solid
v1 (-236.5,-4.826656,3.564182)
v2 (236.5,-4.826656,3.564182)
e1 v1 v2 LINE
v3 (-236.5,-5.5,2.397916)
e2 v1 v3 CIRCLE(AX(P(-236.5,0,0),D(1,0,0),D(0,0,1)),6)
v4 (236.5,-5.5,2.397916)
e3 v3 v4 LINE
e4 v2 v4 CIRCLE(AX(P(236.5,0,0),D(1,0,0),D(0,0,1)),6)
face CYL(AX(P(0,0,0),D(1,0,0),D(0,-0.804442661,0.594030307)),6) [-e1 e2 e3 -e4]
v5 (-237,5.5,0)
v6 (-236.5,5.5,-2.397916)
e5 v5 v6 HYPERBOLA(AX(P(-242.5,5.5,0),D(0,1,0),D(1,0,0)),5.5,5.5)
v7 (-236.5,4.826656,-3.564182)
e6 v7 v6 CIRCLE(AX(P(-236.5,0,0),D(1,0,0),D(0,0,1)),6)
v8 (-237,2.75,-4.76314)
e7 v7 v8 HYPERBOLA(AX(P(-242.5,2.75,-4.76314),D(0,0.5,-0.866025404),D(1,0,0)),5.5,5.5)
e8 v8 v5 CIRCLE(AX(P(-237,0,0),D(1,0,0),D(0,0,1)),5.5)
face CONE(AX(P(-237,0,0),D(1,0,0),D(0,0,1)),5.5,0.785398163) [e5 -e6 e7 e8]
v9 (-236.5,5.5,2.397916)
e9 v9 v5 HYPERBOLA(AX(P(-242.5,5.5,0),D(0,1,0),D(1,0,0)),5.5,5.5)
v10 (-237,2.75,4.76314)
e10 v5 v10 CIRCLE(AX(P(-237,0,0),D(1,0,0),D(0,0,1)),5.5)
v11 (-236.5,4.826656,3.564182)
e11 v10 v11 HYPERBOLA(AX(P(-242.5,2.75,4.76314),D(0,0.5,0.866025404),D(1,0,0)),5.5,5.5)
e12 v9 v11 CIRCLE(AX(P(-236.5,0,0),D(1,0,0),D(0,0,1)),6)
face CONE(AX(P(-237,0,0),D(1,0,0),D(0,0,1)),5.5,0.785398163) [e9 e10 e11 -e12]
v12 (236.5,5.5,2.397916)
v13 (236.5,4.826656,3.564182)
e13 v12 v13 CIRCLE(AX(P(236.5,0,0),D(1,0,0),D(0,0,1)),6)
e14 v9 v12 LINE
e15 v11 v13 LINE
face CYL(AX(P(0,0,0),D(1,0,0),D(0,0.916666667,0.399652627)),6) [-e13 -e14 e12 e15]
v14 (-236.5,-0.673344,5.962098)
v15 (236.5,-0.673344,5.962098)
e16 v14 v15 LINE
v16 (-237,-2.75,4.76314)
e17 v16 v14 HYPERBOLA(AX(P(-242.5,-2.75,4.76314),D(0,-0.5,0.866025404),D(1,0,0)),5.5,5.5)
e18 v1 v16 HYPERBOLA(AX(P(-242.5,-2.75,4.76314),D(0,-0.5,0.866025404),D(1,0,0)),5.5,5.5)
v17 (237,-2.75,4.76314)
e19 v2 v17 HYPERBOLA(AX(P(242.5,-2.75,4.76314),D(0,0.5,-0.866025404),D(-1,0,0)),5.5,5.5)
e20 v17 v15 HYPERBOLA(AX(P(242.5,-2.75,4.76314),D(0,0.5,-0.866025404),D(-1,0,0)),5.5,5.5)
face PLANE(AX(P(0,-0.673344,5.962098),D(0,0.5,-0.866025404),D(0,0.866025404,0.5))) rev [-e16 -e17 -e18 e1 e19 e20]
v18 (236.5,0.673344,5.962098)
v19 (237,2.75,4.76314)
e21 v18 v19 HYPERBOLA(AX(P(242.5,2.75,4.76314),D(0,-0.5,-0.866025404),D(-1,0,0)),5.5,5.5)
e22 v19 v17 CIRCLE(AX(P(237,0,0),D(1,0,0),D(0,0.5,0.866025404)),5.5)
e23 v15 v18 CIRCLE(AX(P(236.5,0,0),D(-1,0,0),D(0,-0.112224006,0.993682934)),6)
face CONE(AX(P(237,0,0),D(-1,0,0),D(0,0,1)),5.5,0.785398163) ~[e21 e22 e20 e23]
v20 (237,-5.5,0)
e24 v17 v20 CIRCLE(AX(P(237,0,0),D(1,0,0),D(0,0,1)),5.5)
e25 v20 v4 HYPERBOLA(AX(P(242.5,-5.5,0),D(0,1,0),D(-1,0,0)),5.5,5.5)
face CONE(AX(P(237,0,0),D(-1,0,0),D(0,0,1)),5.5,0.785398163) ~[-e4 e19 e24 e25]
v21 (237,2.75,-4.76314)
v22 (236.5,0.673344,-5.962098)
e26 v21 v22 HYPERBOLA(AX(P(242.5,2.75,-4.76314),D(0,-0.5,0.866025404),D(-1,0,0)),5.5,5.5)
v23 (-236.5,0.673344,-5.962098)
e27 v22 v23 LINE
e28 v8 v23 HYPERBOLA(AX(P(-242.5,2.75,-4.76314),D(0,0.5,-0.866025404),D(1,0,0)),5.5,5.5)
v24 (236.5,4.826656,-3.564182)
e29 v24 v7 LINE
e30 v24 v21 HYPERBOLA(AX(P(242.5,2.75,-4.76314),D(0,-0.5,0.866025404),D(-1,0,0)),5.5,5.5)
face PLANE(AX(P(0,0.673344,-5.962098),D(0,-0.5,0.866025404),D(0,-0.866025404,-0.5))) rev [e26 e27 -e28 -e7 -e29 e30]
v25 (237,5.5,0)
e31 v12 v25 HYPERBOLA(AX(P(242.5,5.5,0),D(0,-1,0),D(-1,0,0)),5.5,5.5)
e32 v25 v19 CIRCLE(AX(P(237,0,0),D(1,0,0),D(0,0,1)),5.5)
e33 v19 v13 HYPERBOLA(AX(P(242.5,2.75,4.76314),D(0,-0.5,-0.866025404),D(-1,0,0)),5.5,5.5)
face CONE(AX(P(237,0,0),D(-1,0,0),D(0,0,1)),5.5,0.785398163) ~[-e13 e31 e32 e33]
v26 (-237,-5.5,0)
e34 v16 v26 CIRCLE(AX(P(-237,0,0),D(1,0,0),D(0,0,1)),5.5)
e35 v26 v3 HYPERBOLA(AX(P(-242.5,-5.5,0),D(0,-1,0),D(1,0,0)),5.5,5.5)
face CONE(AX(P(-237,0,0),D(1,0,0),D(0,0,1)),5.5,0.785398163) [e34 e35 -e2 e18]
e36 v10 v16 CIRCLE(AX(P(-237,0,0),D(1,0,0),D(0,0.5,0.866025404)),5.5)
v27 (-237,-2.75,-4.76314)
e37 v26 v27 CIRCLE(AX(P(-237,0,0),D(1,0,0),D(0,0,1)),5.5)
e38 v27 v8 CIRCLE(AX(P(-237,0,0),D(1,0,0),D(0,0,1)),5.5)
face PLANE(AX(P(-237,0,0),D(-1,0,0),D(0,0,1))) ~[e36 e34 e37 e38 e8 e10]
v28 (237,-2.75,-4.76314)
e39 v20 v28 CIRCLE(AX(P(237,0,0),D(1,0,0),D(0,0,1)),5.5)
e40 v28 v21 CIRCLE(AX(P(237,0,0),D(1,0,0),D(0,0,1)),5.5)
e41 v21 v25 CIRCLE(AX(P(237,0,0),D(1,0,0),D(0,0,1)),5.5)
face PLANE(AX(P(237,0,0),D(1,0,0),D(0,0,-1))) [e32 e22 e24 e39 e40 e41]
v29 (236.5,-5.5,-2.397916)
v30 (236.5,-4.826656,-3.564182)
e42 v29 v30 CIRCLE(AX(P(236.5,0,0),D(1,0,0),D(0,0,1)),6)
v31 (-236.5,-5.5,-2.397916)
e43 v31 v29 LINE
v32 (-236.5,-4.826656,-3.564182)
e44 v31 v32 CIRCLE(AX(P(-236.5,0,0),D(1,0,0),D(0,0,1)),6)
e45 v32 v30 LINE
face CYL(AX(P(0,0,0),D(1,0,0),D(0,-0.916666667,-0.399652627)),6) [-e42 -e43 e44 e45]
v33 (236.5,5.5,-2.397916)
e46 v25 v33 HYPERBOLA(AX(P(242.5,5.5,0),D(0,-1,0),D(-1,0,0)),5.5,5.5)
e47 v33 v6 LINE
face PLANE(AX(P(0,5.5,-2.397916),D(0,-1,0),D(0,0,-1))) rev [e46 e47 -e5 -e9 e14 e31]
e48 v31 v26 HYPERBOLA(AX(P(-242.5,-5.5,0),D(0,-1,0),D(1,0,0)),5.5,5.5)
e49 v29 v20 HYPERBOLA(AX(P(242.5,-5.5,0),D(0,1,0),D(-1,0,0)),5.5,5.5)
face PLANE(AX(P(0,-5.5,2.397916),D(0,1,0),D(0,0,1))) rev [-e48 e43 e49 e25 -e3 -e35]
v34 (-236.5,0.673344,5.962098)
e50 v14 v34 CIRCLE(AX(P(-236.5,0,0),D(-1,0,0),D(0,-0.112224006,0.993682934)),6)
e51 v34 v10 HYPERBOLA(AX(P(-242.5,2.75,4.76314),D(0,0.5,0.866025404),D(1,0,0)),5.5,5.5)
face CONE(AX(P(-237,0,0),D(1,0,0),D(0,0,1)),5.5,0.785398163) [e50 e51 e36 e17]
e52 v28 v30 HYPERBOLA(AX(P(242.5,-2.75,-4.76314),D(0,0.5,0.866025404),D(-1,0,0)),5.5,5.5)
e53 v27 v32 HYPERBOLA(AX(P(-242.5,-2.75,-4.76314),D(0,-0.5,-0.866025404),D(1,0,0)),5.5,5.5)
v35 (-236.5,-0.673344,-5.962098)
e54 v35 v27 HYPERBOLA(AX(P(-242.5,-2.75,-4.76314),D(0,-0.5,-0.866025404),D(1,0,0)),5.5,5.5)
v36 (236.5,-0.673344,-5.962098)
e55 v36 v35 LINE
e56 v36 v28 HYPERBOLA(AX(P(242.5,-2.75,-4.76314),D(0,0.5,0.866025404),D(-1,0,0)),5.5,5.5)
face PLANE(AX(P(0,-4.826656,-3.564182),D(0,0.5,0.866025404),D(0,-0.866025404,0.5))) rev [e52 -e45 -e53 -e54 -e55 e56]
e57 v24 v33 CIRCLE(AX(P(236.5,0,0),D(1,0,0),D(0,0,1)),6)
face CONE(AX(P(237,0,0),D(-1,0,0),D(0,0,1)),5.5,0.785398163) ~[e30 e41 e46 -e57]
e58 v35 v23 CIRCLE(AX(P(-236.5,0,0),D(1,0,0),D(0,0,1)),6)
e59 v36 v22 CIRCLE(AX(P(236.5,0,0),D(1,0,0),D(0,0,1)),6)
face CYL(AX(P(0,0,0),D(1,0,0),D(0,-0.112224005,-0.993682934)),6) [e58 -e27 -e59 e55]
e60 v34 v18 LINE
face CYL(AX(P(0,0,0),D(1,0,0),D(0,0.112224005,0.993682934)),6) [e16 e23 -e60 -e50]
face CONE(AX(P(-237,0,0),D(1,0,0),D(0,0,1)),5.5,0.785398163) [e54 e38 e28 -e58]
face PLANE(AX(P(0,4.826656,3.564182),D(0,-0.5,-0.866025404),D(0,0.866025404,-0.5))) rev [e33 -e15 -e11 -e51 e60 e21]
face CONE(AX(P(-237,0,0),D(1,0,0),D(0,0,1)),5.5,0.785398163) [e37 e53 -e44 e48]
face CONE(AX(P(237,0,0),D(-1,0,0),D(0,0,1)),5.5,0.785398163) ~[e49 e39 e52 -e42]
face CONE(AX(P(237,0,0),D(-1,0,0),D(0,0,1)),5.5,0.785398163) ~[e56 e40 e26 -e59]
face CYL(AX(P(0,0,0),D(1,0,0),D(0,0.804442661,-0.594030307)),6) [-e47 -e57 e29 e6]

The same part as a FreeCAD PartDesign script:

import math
import FreeCAD as App
import Part
import Sketcher
from FreeCAD import Vector
Q = App.Units.Quantity

doc = App.newDocument("Part")
body = doc.addObject("PartDesign::Body", "Body")

# Sketch on YZ plane
sketch1 = body.newObject("Sketcher::SketchObject", "Sketch")
sketch1.AttachmentSupport = (doc.getObject("YZ_Plane"), [""])
sketch1.MapMode = "FlatFace"
sketch1.addGeometry([
    Part.LineSegment(Vector(5.5, -2.4, 0), Vector(5.5, 2.4, 0)),  # 0
    Part.ArcOfCircle(Part.Circle(Vector(0, 0, 0), Vector(0, 0, 1), 6), math.radians(23.56), math.radians(36.44)),  # 1
    Part.LineSegment(Vector(4.8, 3.6, 0), Vector(0.7, 6, 0)),  # 2
    Part.ArcOfCircle(Part.Circle(Vector(0, 0, 0), Vector(0, 0, 1), 6), math.radians(83.56), math.radians(96.44)),  # 3
    Part.LineSegment(Vector(-0.7, 6, 0), Vector(-4.8, 3.6, 0)),  # 4
    Part.ArcOfCircle(Part.Circle(Vector(0, 0, 0), Vector(0, 0, 1), 6), math.radians(143.56), math.radians(156.44)),  # 5
    Part.LineSegment(Vector(-5.5, 2.4, 0), Vector(-5.5, -2.4, 0)),  # 6
    Part.ArcOfCircle(Part.Circle(Vector(0, 0, 0), Vector(0, 0, 1), 6), math.radians(-156.44), math.radians(-143.56)),  # 7
    Part.LineSegment(Vector(-4.8, -3.6, 0), Vector(-0.7, -6, 0)),  # 8
    Part.ArcOfCircle(Part.Circle(Vector(0, 0, 0), Vector(0, 0, 1), 6), math.radians(-96.44), math.radians(-83.56)),  # 9
    Part.LineSegment(Vector(0.7, -6, 0), Vector(4.8, -3.6, 0)),  # 10
    Part.ArcOfCircle(Part.Circle(Vector(0, 0, 0), Vector(0, 0, 1), 6), math.radians(-36.44), math.radians(-23.56)),  # 11
], False)
sketch1.addConstraint([
    Sketcher.Constraint("Coincident", 0, 2, 1, 1),
    Sketcher.Constraint("Coincident", 1, 2, 2, 1),
    Sketcher.Constraint("Coincident", 2, 2, 3, 1),
    Sketcher.Constraint("Coincident", 3, 2, 4, 1),
    Sketcher.Constraint("Coincident", 4, 2, 5, 1),
    Sketcher.Constraint("Coincident", 5, 2, 6, 1),
    Sketcher.Constraint("Coincident", 6, 2, 7, 1),
    Sketcher.Constraint("Coincident", 7, 2, 8, 1),
    Sketcher.Constraint("Coincident", 8, 2, 9, 1),
    Sketcher.Constraint("Coincident", 9, 2, 10, 1),
    Sketcher.Constraint("Coincident", 10, 2, 11, 1),
    Sketcher.Constraint("Coincident", 11, 2, 0, 1),
    Sketcher.Constraint("Vertical", 0),
    Sketcher.Constraint("Vertical", 6),
    Sketcher.Constraint("Coincident", 1, 3, -1, 1),
    Sketcher.Constraint("Coincident", 3, 3, -1, 1),
    Sketcher.Constraint("Coincident", 5, 3, -1, 1),
    Sketcher.Constraint("Coincident", 7, 3, -1, 1),
    Sketcher.Constraint("Coincident", 9, 3, -1, 1),
    Sketcher.Constraint("Coincident", 11, 3, -1, 1),
    Sketcher.Constraint("Equal", 1, 3),
    Sketcher.Constraint("Equal", 3, 5),
    Sketcher.Constraint("Equal", 5, 7),
    Sketcher.Constraint("Equal", 7, 9),
    Sketcher.Constraint("Equal", 9, 11),
    Sketcher.Constraint("Parallel", 2, 8),
    Sketcher.Constraint("Parallel", 4, 10),
    Sketcher.Constraint("Horizontal", 2, 2, 3, 2),
    Sketcher.Constraint("Horizontal", 1, 2, 4, 2),
    Sketcher.Constraint("Horizontal", 0, 2, 5, 2),
    Sketcher.Constraint("Horizontal", 8, 2, 9, 2),
    Sketcher.Constraint("Vertical", 4, 2, 7, 2),
    Sketcher.Constraint("Radius", 1, 6.0),
    Sketcher.Constraint("Angle", 2, Q("150 deg")),
    Sketcher.Constraint("DistanceX", -1, 1, 0, 2, 5.5),
    Sketcher.Constraint("DistanceX", 3, 2, 1, 2, 5.5),
])
pad1 = body.newObject("PartDesign::Pad", "Pad")
pad1.Profile = sketch1
pad1.Length = 237

# Sketch on XZ plane
sketch2 = body.newObject("Sketcher::SketchObject", "Sketch001")
sketch2.AttachmentSupport = (doc.getObject("XZ_Plane"), [""])
sketch2.MapMode = "FlatFace"
sketch2.addGeometry([
    Part.LineSegment(Vector(236.5, 6, 0), Vector(237, 6, 0)),
    Part.LineSegment(Vector(237, 6, 0), Vector(237, 5.5, 0)),
    Part.LineSegment(Vector(237, 5.5, 0), Vector(236.5, 6, 0)),
], False)
sketch2.addConstraint([
    Sketcher.Constraint("Coincident", 0, 2, 1, 1),
    Sketcher.Constraint("Coincident", 1, 2, 2, 1),
    Sketcher.Constraint("Coincident", 2, 2, 0, 1),
    Sketcher.Constraint("Horizontal", 0),
    Sketcher.Constraint("Vertical", 1),
    Sketcher.Constraint("Equal", 0, 1),
    Sketcher.Constraint("DistanceX", 0, 1, 0, 2, 0.5),
    Sketcher.Constraint("DistanceX", -1, 1, 0, 2, 237.0),
    Sketcher.Constraint("DistanceY", -1, 1, 0, 2, 6.0),
])
groove = body.newObject("PartDesign::Groove", "Groove")
groove.Profile = sketch2
groove.ReferenceAxis = (sketch2, ["H_Axis"])
groove.Angle = 360
body2 = doc.addObject("PartDesign::Body", "Body001")
doc.recompute()

body2.BaseFeature = body
doc.recompute()

mirroring = doc.addObject("Part::Mirroring", "Mirroring")
mirroring.Source = body
mirroring.Base = Vector(0, 0, 0)
mirroring.Normal = Vector(1, 0, 0)
body3 = doc.addObject("PartDesign::Body", "Body002")
body3.BaseFeature = mirroring
boolean = body2.newObject("PartDesign::Boolean", "Boolean")
boolean.Type = "Fuse"
boolean.addObjects([body3])
doc.recompute()
mirroring.Visibility = False

doc.recompute()
